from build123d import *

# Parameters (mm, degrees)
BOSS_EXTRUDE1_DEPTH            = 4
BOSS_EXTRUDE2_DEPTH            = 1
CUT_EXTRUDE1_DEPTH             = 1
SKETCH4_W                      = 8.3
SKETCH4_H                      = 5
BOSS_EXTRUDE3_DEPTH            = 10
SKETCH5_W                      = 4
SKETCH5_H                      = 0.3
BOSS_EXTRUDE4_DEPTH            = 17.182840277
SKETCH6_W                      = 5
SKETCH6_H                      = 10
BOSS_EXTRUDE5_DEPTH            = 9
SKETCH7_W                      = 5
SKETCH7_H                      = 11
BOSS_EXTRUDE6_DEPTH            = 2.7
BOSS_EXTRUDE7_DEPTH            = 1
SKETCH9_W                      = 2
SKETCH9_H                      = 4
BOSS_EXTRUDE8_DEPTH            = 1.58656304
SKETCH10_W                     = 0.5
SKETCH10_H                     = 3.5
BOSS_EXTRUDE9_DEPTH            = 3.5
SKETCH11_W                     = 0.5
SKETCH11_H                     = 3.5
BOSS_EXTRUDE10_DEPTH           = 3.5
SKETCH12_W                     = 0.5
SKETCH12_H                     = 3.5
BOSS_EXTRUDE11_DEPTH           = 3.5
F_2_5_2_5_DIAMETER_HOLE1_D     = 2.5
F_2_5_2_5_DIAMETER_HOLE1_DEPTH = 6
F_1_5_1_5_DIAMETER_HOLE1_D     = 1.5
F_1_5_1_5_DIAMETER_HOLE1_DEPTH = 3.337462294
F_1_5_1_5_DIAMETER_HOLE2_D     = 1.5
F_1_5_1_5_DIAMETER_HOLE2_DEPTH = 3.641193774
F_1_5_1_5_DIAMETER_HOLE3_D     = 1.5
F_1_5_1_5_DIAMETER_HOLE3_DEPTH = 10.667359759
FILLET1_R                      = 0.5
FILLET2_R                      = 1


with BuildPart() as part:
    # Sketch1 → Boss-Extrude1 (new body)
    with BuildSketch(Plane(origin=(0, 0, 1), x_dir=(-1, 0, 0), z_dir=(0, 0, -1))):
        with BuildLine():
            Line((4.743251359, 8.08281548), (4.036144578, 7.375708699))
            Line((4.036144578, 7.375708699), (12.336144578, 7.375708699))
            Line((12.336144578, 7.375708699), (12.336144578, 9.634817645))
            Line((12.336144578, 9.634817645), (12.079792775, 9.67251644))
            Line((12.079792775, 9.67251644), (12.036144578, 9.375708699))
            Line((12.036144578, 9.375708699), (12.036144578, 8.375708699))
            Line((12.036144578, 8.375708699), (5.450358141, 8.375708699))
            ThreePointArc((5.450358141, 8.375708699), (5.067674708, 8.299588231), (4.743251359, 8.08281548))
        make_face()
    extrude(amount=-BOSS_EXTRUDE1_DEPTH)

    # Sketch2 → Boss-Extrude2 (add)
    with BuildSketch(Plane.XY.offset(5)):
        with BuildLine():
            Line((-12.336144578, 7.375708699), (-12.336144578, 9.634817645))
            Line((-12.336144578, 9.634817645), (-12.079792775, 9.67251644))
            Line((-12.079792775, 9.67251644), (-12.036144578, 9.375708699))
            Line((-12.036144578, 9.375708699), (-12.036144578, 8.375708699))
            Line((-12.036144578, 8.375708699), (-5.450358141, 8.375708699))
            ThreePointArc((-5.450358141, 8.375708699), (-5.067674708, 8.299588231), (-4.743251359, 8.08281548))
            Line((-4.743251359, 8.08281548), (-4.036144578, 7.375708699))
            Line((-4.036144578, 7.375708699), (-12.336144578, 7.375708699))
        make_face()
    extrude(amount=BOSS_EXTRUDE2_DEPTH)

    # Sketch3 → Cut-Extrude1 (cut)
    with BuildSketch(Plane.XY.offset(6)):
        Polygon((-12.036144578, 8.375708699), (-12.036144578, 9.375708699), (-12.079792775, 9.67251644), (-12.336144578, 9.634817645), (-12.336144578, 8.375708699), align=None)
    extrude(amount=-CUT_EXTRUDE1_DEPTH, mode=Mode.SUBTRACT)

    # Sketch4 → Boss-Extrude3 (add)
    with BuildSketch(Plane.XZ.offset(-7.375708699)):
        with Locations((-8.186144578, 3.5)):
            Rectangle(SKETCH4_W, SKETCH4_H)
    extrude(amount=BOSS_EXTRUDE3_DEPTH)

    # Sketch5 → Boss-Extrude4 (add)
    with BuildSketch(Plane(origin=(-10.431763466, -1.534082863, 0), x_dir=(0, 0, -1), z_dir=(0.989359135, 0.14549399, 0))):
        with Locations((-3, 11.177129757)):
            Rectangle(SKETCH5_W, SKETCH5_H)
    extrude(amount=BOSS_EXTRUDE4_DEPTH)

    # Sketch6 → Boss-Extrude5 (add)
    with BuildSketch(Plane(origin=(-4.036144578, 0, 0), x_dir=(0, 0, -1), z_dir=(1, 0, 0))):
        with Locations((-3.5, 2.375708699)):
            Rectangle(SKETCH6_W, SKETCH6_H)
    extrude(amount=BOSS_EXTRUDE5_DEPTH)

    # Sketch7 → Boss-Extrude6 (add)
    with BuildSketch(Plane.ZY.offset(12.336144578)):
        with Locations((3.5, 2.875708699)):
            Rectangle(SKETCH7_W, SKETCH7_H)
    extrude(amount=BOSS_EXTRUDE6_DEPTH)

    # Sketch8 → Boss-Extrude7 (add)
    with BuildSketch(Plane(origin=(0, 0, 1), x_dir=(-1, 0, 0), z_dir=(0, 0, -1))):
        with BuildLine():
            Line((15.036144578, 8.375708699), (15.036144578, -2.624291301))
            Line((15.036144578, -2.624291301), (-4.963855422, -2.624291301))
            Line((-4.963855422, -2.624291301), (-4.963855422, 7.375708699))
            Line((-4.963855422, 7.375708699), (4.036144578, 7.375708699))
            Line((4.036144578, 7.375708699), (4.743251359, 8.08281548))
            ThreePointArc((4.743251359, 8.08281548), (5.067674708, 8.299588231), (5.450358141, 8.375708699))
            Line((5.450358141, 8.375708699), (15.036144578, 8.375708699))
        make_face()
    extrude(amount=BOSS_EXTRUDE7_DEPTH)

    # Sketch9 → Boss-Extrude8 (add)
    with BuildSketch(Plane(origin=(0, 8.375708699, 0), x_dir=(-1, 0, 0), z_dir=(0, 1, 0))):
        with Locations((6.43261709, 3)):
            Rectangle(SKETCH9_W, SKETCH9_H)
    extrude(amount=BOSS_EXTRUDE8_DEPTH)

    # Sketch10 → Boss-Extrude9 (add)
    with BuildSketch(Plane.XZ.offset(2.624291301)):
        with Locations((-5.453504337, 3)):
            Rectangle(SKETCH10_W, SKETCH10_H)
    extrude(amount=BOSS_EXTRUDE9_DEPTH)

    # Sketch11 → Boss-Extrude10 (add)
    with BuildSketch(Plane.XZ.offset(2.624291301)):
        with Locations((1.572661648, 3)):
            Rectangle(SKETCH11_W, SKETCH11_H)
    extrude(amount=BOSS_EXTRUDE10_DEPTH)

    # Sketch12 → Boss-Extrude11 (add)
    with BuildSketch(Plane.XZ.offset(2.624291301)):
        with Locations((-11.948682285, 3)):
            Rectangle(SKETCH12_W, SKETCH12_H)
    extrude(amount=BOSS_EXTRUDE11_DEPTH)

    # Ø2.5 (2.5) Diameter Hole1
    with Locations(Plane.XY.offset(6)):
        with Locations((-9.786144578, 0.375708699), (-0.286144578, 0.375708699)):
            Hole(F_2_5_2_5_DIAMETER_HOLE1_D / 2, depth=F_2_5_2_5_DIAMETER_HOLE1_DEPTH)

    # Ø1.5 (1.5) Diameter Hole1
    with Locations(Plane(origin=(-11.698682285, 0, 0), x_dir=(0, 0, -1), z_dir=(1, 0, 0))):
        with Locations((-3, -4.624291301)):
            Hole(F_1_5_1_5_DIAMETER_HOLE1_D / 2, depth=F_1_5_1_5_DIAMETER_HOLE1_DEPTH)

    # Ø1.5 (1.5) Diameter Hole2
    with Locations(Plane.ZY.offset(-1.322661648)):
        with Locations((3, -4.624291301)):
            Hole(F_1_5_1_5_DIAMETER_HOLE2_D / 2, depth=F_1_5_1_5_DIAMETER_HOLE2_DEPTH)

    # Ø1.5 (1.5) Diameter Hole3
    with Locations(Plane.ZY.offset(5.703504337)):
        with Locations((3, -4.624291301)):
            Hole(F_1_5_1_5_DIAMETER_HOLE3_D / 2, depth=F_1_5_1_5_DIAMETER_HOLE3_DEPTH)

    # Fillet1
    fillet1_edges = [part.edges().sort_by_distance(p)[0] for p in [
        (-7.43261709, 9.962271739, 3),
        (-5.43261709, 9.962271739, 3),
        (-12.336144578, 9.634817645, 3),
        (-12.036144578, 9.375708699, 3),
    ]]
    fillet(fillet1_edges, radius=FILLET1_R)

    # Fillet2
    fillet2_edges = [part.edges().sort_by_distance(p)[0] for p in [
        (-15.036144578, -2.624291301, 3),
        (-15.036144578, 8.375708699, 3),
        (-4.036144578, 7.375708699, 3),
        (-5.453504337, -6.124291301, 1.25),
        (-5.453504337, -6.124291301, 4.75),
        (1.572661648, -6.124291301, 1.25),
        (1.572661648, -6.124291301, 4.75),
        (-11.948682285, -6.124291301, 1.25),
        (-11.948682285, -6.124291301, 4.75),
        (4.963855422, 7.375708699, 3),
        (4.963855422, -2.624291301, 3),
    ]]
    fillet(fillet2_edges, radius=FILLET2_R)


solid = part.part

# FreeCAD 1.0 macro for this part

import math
import FreeCAD as App
import Part
import Sketcher
from FreeCAD import Vector
Q = App.Units.Quantity


def edges_at(feature, points):
    """Names of the edges that pass closest to the given points."""
    edges = feature.Shape.Edges
    near = lambda p: min(range(len(edges)), key=lambda i: edges[i].distToShape(Part.Vertex(*p))[0])
    return sorted({f"Edge{near(p) + 1}" for p in points})

doc = App.newDocument("Part")
body = doc.addObject("PartDesign::Body", "Body")

# Sketch on XY plane
sketch1 = body.newObject("Sketcher::SketchObject", "Sketch")
sketch1.AttachmentSupport = (doc.getObject("XY_Plane"), [""])
sketch1.MapMode = "FlatFace"
sketch1.AttachmentOffset = App.Placement(Vector(0, 0, 1), App.Rotation())
sketch1.addGeometry([
    Part.LineSegment(Vector(-4.74, 8.08, 0), Vector(-4.04, 7.38, 0)),  # 0
    Part.LineSegment(Vector(-4.04, 7.38, 0), Vector(-12.34, 7.38, 0)),  # 1
    Part.LineSegment(Vector(-12.34, 7.38, 0), Vector(-12.34, 9.63, 0)),  # 2
    Part.LineSegment(Vector(-12.34, 9.63, 0), Vector(-12.08, 9.67, 0)),  # 3
    Part.LineSegment(Vector(-12.08, 9.67, 0), Vector(-12.04, 9.38, 0)),  # 4
    Part.LineSegment(Vector(-12.04, 9.38, 0), Vector(-12.04, 8.38, 0)),  # 5
    Part.LineSegment(Vector(-12.04, 8.38, 0), Vector(-5.45, 8.38, 0)),  # 6
    Part.ArcOfCircle(Part.Circle(Vector(-5.45, 7.38, 0), Vector(0, 0, 1), 1), math.radians(45), math.radians(90)),  # 7
], False)
sketch1.addConstraint([
    Sketcher.Constraint("Coincident", 0, 2, 1, 1),
    Sketcher.Constraint("Coincident", 1, 2, 2, 1),
    Sketcher.Constraint("Coincident", 2, 2, 3, 1),
    Sketcher.Constraint("Coincident", 3, 2, 4, 1),
    Sketcher.Constraint("Coincident", 4, 2, 5, 1),
    Sketcher.Constraint("Coincident", 5, 2, 6, 1),
    Sketcher.Constraint("Tangent", 6, 2, 7, 2),
    Sketcher.Constraint("Tangent", 7, 1, 0, 1),
    Sketcher.Constraint("Horizontal", 1),
    Sketcher.Constraint("Vertical", 2),
    Sketcher.Constraint("Vertical", 5),
    Sketcher.Constraint("Horizontal", 6),
    Sketcher.Constraint("Perpendicular", 3, 4),
    Sketcher.Constraint("Horizontal", 7, 3, 0, 2),
    Sketcher.Constraint("Radius", 7, 1.0),
    Sketcher.Constraint("DistanceY", 5, 2, 5, 1, 1.0),
    Sketcher.Constraint("Angle", 0, Q("-45 deg")),
    Sketcher.Constraint("DistanceX", 1, 2, 1, 1, 8.3),
    Sketcher.Constraint("DistanceX", 4, 2, 0, 2, 8.0),
    Sketcher.Constraint("Distance", 4, 0.3),
    Sketcher.Constraint("DistanceY", 2, 1, 2, 2, 2.259109),
    Sketcher.Constraint("DistanceX", 7, 3, -1, 1, 5.450358),
    Sketcher.Constraint("DistanceY", -1, 1, 7, 3, 7.375709),
])
pad1 = body.newObject("PartDesign::Pad", "Pad")
pad1.Profile = sketch1
pad1.Length = 4

# Sketch on XY plane
sketch2 = body.newObject("Sketcher::SketchObject", "Sketch001")
sketch2.AttachmentSupport = (doc.getObject("XY_Plane"), [""])
sketch2.MapMode = "FlatFace"
sketch2.AttachmentOffset = App.Placement(Vector(0, 0, 5), App.Rotation())
sketch2.addGeometry([
    Part.LineSegment(Vector(-12.34, 9.63, 0), Vector(-12.34, 7.38, 0)),  # 0
    Part.LineSegment(Vector(-12.34, 7.38, 0), Vector(-4.04, 7.38, 0)),  # 1
    Part.LineSegment(Vector(-4.04, 7.38, 0), Vector(-4.74, 8.08, 0)),  # 2
    Part.ArcOfCircle(Part.Circle(Vector(-5.45, 7.38, 0), Vector(0, 0, 1), 1), math.radians(45), math.radians(90)),  # 3
    Part.LineSegment(Vector(-5.45, 8.38, 0), Vector(-12.04, 8.38, 0)),  # 4
    Part.LineSegment(Vector(-12.04, 8.38, 0), Vector(-12.04, 9.38, 0)),  # 5
    Part.LineSegment(Vector(-12.04, 9.38, 0), Vector(-12.08, 9.67, 0)),  # 6
    Part.LineSegment(Vector(-12.08, 9.67, 0), Vector(-12.34, 9.63, 0)),  # 7
], False)
sketch2.addConstraint([
    Sketcher.Constraint("Coincident", 0, 2, 1, 1),
    Sketcher.Constraint("Coincident", 1, 2, 2, 1),
    Sketcher.Constraint("Tangent", 2, 2, 3, 1),
    Sketcher.Constraint("Tangent", 3, 2, 4, 1),
    Sketcher.Constraint("Coincident", 4, 2, 5, 1),
    Sketcher.Constraint("Coincident", 5, 2, 6, 1),
    Sketcher.Constraint("Coincident", 6, 2, 7, 1),
    Sketcher.Constraint("Coincident", 7, 2, 0, 1),
    Sketcher.Constraint("Vertical", 0),
    Sketcher.Constraint("Horizontal", 1),
    Sketcher.Constraint("Horizontal", 4),
    Sketcher.Constraint("Vertical", 5),
    Sketcher.Constraint("Perpendicular", 6, 7),
    Sketcher.Constraint("Horizontal", 3, 3, 0, 2),
    Sketcher.Constraint("Radius", 3, 1.0),
    Sketcher.Constraint("DistanceY", 5, 1, 5, 2, 1.0),
    Sketcher.Constraint("Angle", 2, Q("135 deg")),
    Sketcher.Constraint("DistanceX", 1, 1, 1, 2, 8.3),
    Sketcher.Constraint("DistanceX", 4, 2, 1, 2, 8.0),
    Sketcher.Constraint("Distance", 6, 0.3),
    Sketcher.Constraint("DistanceY", 0, 2, 0, 1, 2.259109),
    Sketcher.Constraint("DistanceX", 3, 3, -1, 1, 5.450358),
    Sketcher.Constraint("DistanceY", -1, 1, 3, 3, 7.375709),
])
pad2 = body.newObject("PartDesign::Pad", "Pad001")
pad2.Profile = sketch2
pad2.Length = 1

# Sketch on XY plane
sketch3 = body.newObject("Sketcher::SketchObject", "Sketch002")
sketch3.AttachmentSupport = (doc.getObject("XY_Plane"), [""])
sketch3.MapMode = "FlatFace"
sketch3.AttachmentOffset = App.Placement(Vector(0, 0, 6), App.Rotation())
sketch3.addGeometry([
    Part.LineSegment(Vector(-12.04, 8.38, 0), Vector(-12.04, 9.38, 0)),  # 0
    Part.LineSegment(Vector(-12.04, 9.38, 0), Vector(-12.08, 9.67, 0)),  # 1
    Part.LineSegment(Vector(-12.08, 9.67, 0), Vector(-12.34, 9.63, 0)),  # 2
    Part.LineSegment(Vector(-12.34, 9.63, 0), Vector(-12.34, 8.38, 0)),  # 3
    Part.LineSegment(Vector(-12.34, 8.38, 0), Vector(-12.04, 8.38, 0)),  # 4
], False)
sketch3.addConstraint([
    Sketcher.Constraint("Coincident", 0, 2, 1, 1),
    Sketcher.Constraint("Coincident", 1, 2, 2, 1),
    Sketcher.Constraint("Coincident", 2, 2, 3, 1),
    Sketcher.Constraint("Coincident", 3, 2, 4, 1),
    Sketcher.Constraint("Coincident", 4, 2, 0, 1),
    Sketcher.Constraint("Vertical", 0),
    Sketcher.Constraint("Vertical", 3),
    Sketcher.Constraint("Horizontal", 4),
    Sketcher.Constraint("Perpendicular", 1, 2),
    Sketcher.Constraint("DistanceY", 0, 1, 0, 2, 1.0),
    Sketcher.Constraint("DistanceX", 4, 1, 4, 2, 0.3),
    Sketcher.Constraint("Distance", 1, 0.3),
    Sketcher.Constraint("DistanceY", 3, 2, 3, 1, 1.259109),
    Sketcher.Constraint("DistanceY", -1, 1, 0, 2, 9.375709),
    Sketcher.Constraint("DistanceX", 0, 2, -1, 1, 12.036145),
])
pocket1 = body.newObject("PartDesign::Pocket", "Pocket")
pocket1.Profile = sketch3
pocket1.Length = 1

# Sketch on XZ plane
sketch4 = body.newObject("Sketcher::SketchObject", "Sketch003")
sketch4.AttachmentSupport = (doc.getObject("XZ_Plane"), [""])
sketch4.MapMode = "FlatFace"
sketch4.AttachmentOffset = App.Placement(Vector(0, 0, -7.375709), App.Rotation())
sketch4.addGeometry([
    Part.LineSegment(Vector(-12, 6, 0), Vector(-12, 1, 0)),
    Part.LineSegment(Vector(-12, 1, 0), Vector(-4, 1, 0)),
    Part.LineSegment(Vector(-4, 1, 0), Vector(-4, 6, 0)),
    Part.LineSegment(Vector(-4, 6, 0), Vector(-12, 6, 0)),
], False)
sketch4.addConstraint([
    Sketcher.Constraint("Coincident", 0, 2, 1, 1),
    Sketcher.Constraint("Coincident", 1, 2, 2, 1),
    Sketcher.Constraint("Coincident", 2, 2, 3, 1),
    Sketcher.Constraint("Coincident", 3, 2, 0, 1),
    Sketcher.Constraint("Vertical", 0),
    Sketcher.Constraint("Horizontal", 1),
    Sketcher.Constraint("Vertical", 2),
    Sketcher.Constraint("Horizontal", 3),
    Sketcher.Constraint("DistanceY", 0, 2, 0, 1, 5.0),
    Sketcher.Constraint("DistanceX", 1, 1, 1, 2, 8.3),
    Sketcher.Constraint("DistanceY", -1, 1, 0, 2, 1.0),
    Sketcher.Constraint("DistanceX", 0, 2, -1, 1, 12.336145),
])
pad3 = body.newObject("PartDesign::Pad", "Pad002")
pad3.Profile = sketch4
pad3.Length = 10

# Sketch on an angled plane
sketch5 = body.newObject("Sketcher::SketchObject", "Sketch004")
sketch5.Placement = App.Placement(Vector(-10.431763, -1.534083, 0), App.Rotation(Vector(0, 0, -1), Vector(-0.14549399, 0.989359135, 0), Vector(0.989359135, 0.14549399, 0), "ZXY"))
sketch5.addGeometry([
    Part.LineSegment(Vector(-5, 11.33, 0), Vector(-5, 11.03, 0)),
    Part.LineSegment(Vector(-5, 11.03, 0), Vector(-1, 11.03, 0)),
    Part.LineSegment(Vector(-1, 11.03, 0), Vector(-1, 11.33, 0)),
    Part.LineSegment(Vector(-1, 11.33, 0), Vector(-5, 11.33, 0)),
], False)
sketch5.addConstraint([
    Sketcher.Constraint("Coincident", 0, 2, 1, 1),
    Sketcher.Constraint("Coincident", 1, 2, 2, 1),
    Sketcher.Constraint("Coincident", 2, 2, 3, 1),
    Sketcher.Constraint("Coincident", 3, 2, 0, 1),
    Sketcher.Constraint("Vertical", 0),
    Sketcher.Constraint("Horizontal", 1),
    Sketcher.Constraint("Vertical", 2),
    Sketcher.Constraint("Horizontal", 3),
    Sketcher.Constraint("DistanceX", 1, 1, 1, 2, 4.0),
    Sketcher.Constraint("DistanceY", 0, 2, 0, 1, 0.3),
    Sketcher.Constraint("DistanceX", 0, 2, -1, 1, 5.0),
    Sketcher.Constraint("DistanceY", -1, 1, 0, 2, 11.02713),
])
pad4 = body.newObject("PartDesign::Pad", "Pad003")
pad4.Profile = sketch5
pad4.Length = 17.18284

# Sketch on YZ plane
sketch6 = body.newObject("Sketcher::SketchObject", "Sketch005")
sketch6.AttachmentSupport = (doc.getObject("YZ_Plane"), [""])
sketch6.MapMode = "FlatFace"
sketch6.AttachmentOffset = App.Placement(Vector(0, 0, -4.036145), App.Rotation())
sketch6.addGeometry([
    Part.LineSegment(Vector(7, 6, 0), Vector(-3, 6, 0)),
    Part.LineSegment(Vector(-3, 6, 0), Vector(-3, 1, 0)),
    Part.LineSegment(Vector(-3, 1, 0), Vector(7, 1, 0)),
    Part.LineSegment(Vector(7, 1, 0), Vector(7, 6, 0)),
], False)
sketch6.addConstraint([
    Sketcher.Constraint("Coincident", 0, 2, 1, 1),
    Sketcher.Constraint("Coincident", 1, 2, 2, 1),
    Sketcher.Constraint("Coincident", 2, 2, 3, 1),
    Sketcher.Constraint("Coincident", 3, 2, 0, 1),
    Sketcher.Constraint("Horizontal", 0),
    Sketcher.Constraint("Vertical", 1),
    Sketcher.Constraint("Horizontal", 2),
    Sketcher.Constraint("Vertical", 3),
    Sketcher.Constraint("DistanceX", 0, 2, 0, 1, 10.0),
    Sketcher.Constraint("DistanceY", 1, 2, 1, 1, 5.0),
    Sketcher.Constraint("DistanceY", -1, 1, 0, 2, 6.0),
    Sketcher.Constraint("DistanceX", 0, 2, -1, 1, 2.624291),
])
pad5 = body.newObject("PartDesign::Pad", "Pad004")
pad5.Profile = sketch6
pad5.Length = 9

# Sketch on YZ plane
sketch7 = body.newObject("Sketcher::SketchObject", "Sketch006")
sketch7.AttachmentSupport = (doc.getObject("YZ_Plane"), [""])
sketch7.MapMode = "FlatFace"
sketch7.AttachmentOffset = App.Placement(Vector(0, 0, -12.336145), App.Rotation())
sketch7.addGeometry([
    Part.LineSegment(Vector(8, 1, 0), Vector(-3, 1, 0)),
    Part.LineSegment(Vector(-3, 1, 0), Vector(-3, 6, 0)),
    Part.LineSegment(Vector(-3, 6, 0), Vector(8, 6, 0)),
    Part.LineSegment(Vector(8, 6, 0), Vector(8, 1, 0)),
], False)
sketch7.addConstraint([
    Sketcher.Constraint("Coincident", 0, 2, 1, 1),
    Sketcher.Constraint("Coincident", 1, 2, 2, 1),
    Sketcher.Constraint("Coincident", 2, 2, 3, 1),
    Sketcher.Constraint("Coincident", 3, 2, 0, 1),
    Sketcher.Constraint("Horizontal", 0),
    Sketcher.Constraint("Vertical", 1),
    Sketcher.Constraint("Horizontal", 2),
    Sketcher.Constraint("Vertical", 3),
    Sketcher.Constraint("DistanceX", 0, 2, 0, 1, 11.0),
    Sketcher.Constraint("DistanceY", 1, 1, 1, 2, 5.0),
    Sketcher.Constraint("DistanceY", -1, 1, 0, 2, 1.0),
    Sketcher.Constraint("DistanceX", 0, 2, -1, 1, 2.624291),
])
pad6 = body.newObject("PartDesign::Pad", "Pad005")
pad6.Profile = sketch7
pad6.Length = 2.7
pad6.Reversed = True

# Sketch on XY plane
sketch8 = body.newObject("Sketcher::SketchObject", "Sketch007")
sketch8.AttachmentSupport = (doc.getObject("XY_Plane"), [""])
sketch8.MapMode = "FlatFace"
sketch8.AttachmentOffset = App.Placement(Vector(0, 0, 1), App.Rotation())
sketch8.addGeometry([
    Part.LineSegment(Vector(-15, -2.6, 0), Vector(-15, 8.4, 0)),  # 0
    Part.LineSegment(Vector(-15, 8.4, 0), Vector(-5.5, 8.4, 0)),  # 1
    Part.ArcOfCircle(Part.Circle(Vector(-5.5, 7.4, 0), Vector(0, 0, 1), 1), math.radians(45), math.radians(90)),  # 2
    Part.LineSegment(Vector(-4.7, 8.1, 0), Vector(-4, 7.4, 0)),  # 3
    Part.LineSegment(Vector(-4, 7.4, 0), Vector(5, 7.4, 0)),  # 4
    Part.LineSegment(Vector(5, 7.4, 0), Vector(5, -2.6, 0)),  # 5
    Part.LineSegment(Vector(5, -2.6, 0), Vector(-15, -2.6, 0)),  # 6
], False)
sketch8.addConstraint([
    Sketcher.Constraint("Coincident", 0, 2, 1, 1),
    Sketcher.Constraint("Tangent", 1, 2, 2, 2),
    Sketcher.Constraint("Tangent", 2, 1, 3, 1),
    Sketcher.Constraint("Coincident", 3, 2, 4, 1),
    Sketcher.Constraint("Coincident", 4, 2, 5, 1),
    Sketcher.Constraint("Coincident", 5, 2, 6, 1),
    Sketcher.Constraint("Coincident", 6, 2, 0, 1),
    Sketcher.Constraint("Vertical", 0),
    Sketcher.Constraint("Horizontal", 1),
    Sketcher.Constraint("Horizontal", 4),
    Sketcher.Constraint("Vertical", 5),
    Sketcher.Constraint("Horizontal", 6),
    Sketcher.Constraint("Horizontal", 2, 3, 3, 2),
    Sketcher.Constraint("Radius", 2, 1.0),
    Sketcher.Constraint("DistanceX", 4, 1, 4, 2, 9.0),
    Sketcher.Constraint("DistanceX", 6, 2, 6, 1, 20.0),
    Sketcher.Constraint("DistanceY", 0, 1, 0, 2, 11.0),
    Sketcher.Constraint("Angle", 3, Q("-45 deg")),
    Sketcher.Constraint("DistanceX", 2, 3, -1, 1, 5.450358),
    Sketcher.Constraint("DistanceY", -1, 1, 2, 3, 7.375709),
])
pad7 = body.newObject("PartDesign::Pad", "Pad006")
pad7.Profile = sketch8
pad7.Length = 1
pad7.Reversed = True

# Sketch on XZ plane
sketch9 = body.newObject("Sketcher::SketchObject", "Sketch008")
sketch9.AttachmentSupport = (doc.getObject("XZ_Plane"), [""])
sketch9.MapMode = "FlatFace"
sketch9.AttachmentOffset = App.Placement(Vector(0, 0, -8.375709), App.Rotation())
sketch9.addGeometry([
    Part.LineSegment(Vector(-5.4, 5, 0), Vector(-5.4, 1, 0)),
    Part.LineSegment(Vector(-5.4, 1, 0), Vector(-7.4, 1, 0)),
    Part.LineSegment(Vector(-7.4, 1, 0), Vector(-7.4, 5, 0)),
    Part.LineSegment(Vector(-7.4, 5, 0), Vector(-5.4, 5, 0)),
], False)
sketch9.addConstraint([
    Sketcher.Constraint("Coincident", 0, 2, 1, 1),
    Sketcher.Constraint("Coincident", 1, 2, 2, 1),
    Sketcher.Constraint("Coincident", 2, 2, 3, 1),
    Sketcher.Constraint("Coincident", 3, 2, 0, 1),
    Sketcher.Constraint("Vertical", 0),
    Sketcher.Constraint("Horizontal", 1),
    Sketcher.Constraint("Vertical", 2),
    Sketcher.Constraint("Horizontal", 3),
    Sketcher.Constraint("DistanceX", 1, 2, 1, 1, 2.0),
    Sketcher.Constraint("DistanceY", 0, 2, 0, 1, 4.0),
    Sketcher.Constraint("DistanceY", -1, 1, 0, 2, 1.0),
    Sketcher.Constraint("DistanceX", 0, 2, -1, 1, 5.432617),
])
pad8 = body.newObject("PartDesign::Pad", "Pad007")
pad8.Profile = sketch9
pad8.Length = 1.586563
pad8.Reversed = True

# Sketch on XZ plane
sketch10 = body.newObject("Sketcher::SketchObject", "Sketch009")
sketch10.AttachmentSupport = (doc.getObject("XZ_Plane"), [""])
sketch10.MapMode = "FlatFace"
sketch10.AttachmentOffset = App.Placement(Vector(0, 0, 2.624291), App.Rotation())
sketch10.addGeometry([
    Part.LineSegment(Vector(-5.7, 4.8, 0), Vector(-5.7, 1.2, 0)),
    Part.LineSegment(Vector(-5.7, 1.2, 0), Vector(-5.2, 1.2, 0)),
    Part.LineSegment(Vector(-5.2, 1.2, 0), Vector(-5.2, 4.8, 0)),
    Part.LineSegment(Vector(-5.2, 4.8, 0), Vector(-5.7, 4.8, 0)),
], False)
sketch10.addConstraint([
    Sketcher.Constraint("Coincident", 0, 2, 1, 1),
    Sketcher.Constraint("Coincident", 1, 2, 2, 1),
    Sketcher.Constraint("Coincident", 2, 2, 3, 1),
    Sketcher.Constraint("Coincident", 3, 2, 0, 1),
    Sketcher.Constraint("Vertical", 0),
    Sketcher.Constraint("Horizontal", 1),
    Sketcher.Constraint("Vertical", 2),
    Sketcher.Constraint("Horizontal", 3),
    Sketcher.Constraint("DistanceX", 1, 1, 1, 2, 0.5),
    Sketcher.Constraint("DistanceY", 0, 2, 0, 1, 3.5),
    Sketcher.Constraint("DistanceY", -1, 1, 0, 2, 1.25),
    Sketcher.Constraint("DistanceX", 0, 2, -1, 1, 5.703504),
])
pad9 = body.newObject("PartDesign::Pad", "Pad008")
pad9.Profile = sketch10
pad9.Length = 3.5

# Sketch on XZ plane
sketch11 = body.newObject("Sketcher::SketchObject", "Sketch010")
sketch11.AttachmentSupport = (doc.getObject("XZ_Plane"), [""])
sketch11.MapMode = "FlatFace"
sketch11.AttachmentOffset = App.Placement(Vector(0, 0, 2.624291), App.Rotation())
sketch11.addGeometry([
    Part.LineSegment(Vector(1.3, 4.8, 0), Vector(1.3, 1.2, 0)),
    Part.LineSegment(Vector(1.3, 1.2, 0), Vector(1.8, 1.2, 0)),
    Part.LineSegment(Vector(1.8, 1.2, 0), Vector(1.8, 4.8, 0)),
    Part.LineSegment(Vector(1.8, 4.8, 0), Vector(1.3, 4.8, 0)),
], False)
sketch11.addConstraint([
    Sketcher.Constraint("Coincident", 0, 2, 1, 1),
    Sketcher.Constraint("Coincident", 1, 2, 2, 1),
    Sketcher.Constraint("Coincident", 2, 2, 3, 1),
    Sketcher.Constraint("Coincident", 3, 2, 0, 1),
    Sketcher.Constraint("Vertical", 0),
    Sketcher.Constraint("Horizontal", 1),
    Sketcher.Constraint("Vertical", 2),
    Sketcher.Constraint("Horizontal", 3),
    Sketcher.Constraint("DistanceX", 1, 1, 1, 2, 0.5),
    Sketcher.Constraint("DistanceY", 0, 2, 0, 1, 3.5),
    Sketcher.Constraint("DistanceY", -1, 1, 0, 2, 1.25),
    Sketcher.Constraint("DistanceX", -1, 1, 0, 2, 1.322662),
])
pad10 = body.newObject("PartDesign::Pad", "Pad009")
pad10.Profile = sketch11
pad10.Length = 3.5

# Sketch on XZ plane
sketch12 = body.newObject("Sketcher::SketchObject", "Sketch011")
sketch12.AttachmentSupport = (doc.getObject("XZ_Plane"), [""])
sketch12.MapMode = "FlatFace"
sketch12.AttachmentOffset = App.Placement(Vector(0, 0, 2.624291), App.Rotation())
sketch12.addGeometry([
    Part.LineSegment(Vector(-12.2, 4.8, 0), Vector(-12.2, 1.2, 0)),
    Part.LineSegment(Vector(-12.2, 1.2, 0), Vector(-11.7, 1.2, 0)),
    Part.LineSegment(Vector(-11.7, 1.2, 0), Vector(-11.7, 4.8, 0)),
    Part.LineSegment(Vector(-11.7, 4.8, 0), Vector(-12.2, 4.8, 0)),
], False)
sketch12.addConstraint([
    Sketcher.Constraint("Coincident", 0, 2, 1, 1),
    Sketcher.Constraint("Coincident", 1, 2, 2, 1),
    Sketcher.Constraint("Coincident", 2, 2, 3, 1),
    Sketcher.Constraint("Coincident", 3, 2, 0, 1),
    Sketcher.Constraint("Vertical", 0),
    Sketcher.Constraint("Horizontal", 1),
    Sketcher.Constraint("Vertical", 2),
    Sketcher.Constraint("Horizontal", 3),
    Sketcher.Constraint("DistanceX", 1, 1, 1, 2, 0.5),
    Sketcher.Constraint("DistanceY", 0, 2, 0, 1, 3.5),
    Sketcher.Constraint("DistanceY", -1, 1, 0, 2, 1.25),
    Sketcher.Constraint("DistanceX", 0, 2, -1, 1, 12.198682),
])
pad11 = body.newObject("PartDesign::Pad", "Pad010")
pad11.Profile = sketch12
pad11.Length = 3.5

# Sketch on XY plane
sketch13 = body.newObject("Sketcher::SketchObject", "Sketch012")
sketch13.AttachmentSupport = (doc.getObject("XY_Plane"), [""])
sketch13.MapMode = "FlatFace"
sketch13.AttachmentOffset = App.Placement(Vector(0, 0, 6), App.Rotation())
sketch13.addGeometry([
    Part.Circle(Vector(-9.8, 0.4, 0), Vector(0, 0, 1), 1.2),
    Part.Circle(Vector(-0.3, 0.4, 0), Vector(0, 0, 1), 1.2),
], False)
sketch13.addConstraint([
    Sketcher.Constraint("Equal", 0, 1),
    Sketcher.Constraint("Horizontal", 0, 3, 1, 3),
    Sketcher.Constraint("Diameter", 0, 2.5),
    Sketcher.Constraint("DistanceX", 0, 3, 1, 3, 9.5),
    Sketcher.Constraint("DistanceY", -1, 1, 0, 3, 0.375709),
    Sketcher.Constraint("DistanceX", 0, 3, -1, 1, 9.786145),
])
doc.recompute()
hole = body.newObject("PartDesign::Hole", "Hole")
hole.Profile = sketch13
hole.ThreadType = "None"
hole.Diameter = 2.5
hole.DepthType = "Dimension"
hole.Depth = 6
hole.DrillPoint = "Flat"

# Sketch on YZ plane
sketch14 = body.newObject("Sketcher::SketchObject", "Sketch013")
sketch14.AttachmentSupport = (doc.getObject("YZ_Plane"), [""])
sketch14.MapMode = "FlatFace"
sketch14.AttachmentOffset = App.Placement(Vector(0, 0, -11.698682), App.Rotation())
sketch14.addGeometry(Part.Circle(Vector(-4.6, 3, 0), Vector(0, 0, 1), 0.8), False)
sketch14.addConstraint([
    Sketcher.Constraint("Diameter", 0, 1.5),
    Sketcher.Constraint("DistanceY", -1, 1, 0, 3, 3.0),
    Sketcher.Constraint("DistanceX", 0, 3, -1, 1, 4.624291),
])
doc.recompute()
hole2 = body.newObject("PartDesign::Hole", "Hole001")
hole2.Profile = sketch14
hole2.ThreadType = "None"
hole2.Diameter = 1.5
hole2.DepthType = "Dimension"
hole2.Depth = 3.337462
hole2.DrillPoint = "Flat"

# Sketch on YZ plane
sketch15 = body.newObject("Sketcher::SketchObject", "Sketch014")
sketch15.AttachmentSupport = (doc.getObject("YZ_Plane"), [""])
sketch15.MapMode = "FlatFace"
sketch15.AttachmentOffset = App.Placement(Vector(0, 0, 1.322662), App.Rotation())
sketch15.addGeometry(Part.Circle(Vector(-4.6, 3, 0), Vector(0, 0, 1), 0.8), False)
sketch15.addConstraint([
    Sketcher.Constraint("Diameter", 0, 1.5),
    Sketcher.Constraint("DistanceY", -1, 1, 0, 3, 3.0),
    Sketcher.Constraint("DistanceX", 0, 3, -1, 1, 4.624291),
])
doc.recompute()
hole3 = body.newObject("PartDesign::Hole", "Hole002")
hole3.Profile = sketch15
hole3.ThreadType = "None"
hole3.Diameter = 1.5
hole3.DepthType = "Dimension"
hole3.Depth = 3.641194
hole3.DrillPoint = "Flat"
hole3.Reversed = True

# Sketch on YZ plane
sketch16 = body.newObject("Sketcher::SketchObject", "Sketch015")
sketch16.AttachmentSupport = (doc.getObject("YZ_Plane"), [""])
sketch16.MapMode = "FlatFace"
sketch16.AttachmentOffset = App.Placement(Vector(0, 0, -5.703504), App.Rotation())
sketch16.addGeometry(Part.Circle(Vector(-4.6, 3, 0), Vector(0, 0, 1), 0.8), False)
sketch16.addConstraint([
    Sketcher.Constraint("Diameter", 0, 1.5),
    Sketcher.Constraint("DistanceY", -1, 1, 0, 3, 3.0),
    Sketcher.Constraint("DistanceX", 0, 3, -1, 1, 4.624291),
])
doc.recompute()
hole4 = body.newObject("PartDesign::Hole", "Hole003")
hole4.Profile = sketch16
hole4.ThreadType = "None"
hole4.Diameter = 1.5
hole4.DepthType = "Dimension"
hole4.Depth = 10.66736
hole4.DrillPoint = "Flat"
hole4.Reversed = True
doc.recompute()

fillet = body.newObject("PartDesign::Fillet", "Fillet")
fillet.Base = (hole4, edges_at(hole4, [
    (-7.433, 9.962, 3),
    (-5.433, 9.962, 3),
    (-12.336, 9.635, 3),
    (-12.036, 9.376, 3),
]))
fillet.Radius = 0.5
doc.recompute()

fillet2 = body.newObject("PartDesign::Fillet", "Fillet001")
fillet2.Base = (fillet, edges_at(fillet, [
    (-15.036, -2.624, 3),
    (-15.036, 8.376, 3),
    (-4.036, 7.376, 3),
    (-5.454, -6.124, 1.25),
    (-5.454, -6.124, 4.75),
    (1.573, -6.124, 1.25),
    (1.573, -6.124, 4.75),
    (-11.949, -6.124, 1.25),
    (-11.949, -6.124, 4.75),
    (4.964, 7.376, 3),
    (4.964, -2.624, 3),
]))
fillet2.Radius = 1

doc.recompute()
